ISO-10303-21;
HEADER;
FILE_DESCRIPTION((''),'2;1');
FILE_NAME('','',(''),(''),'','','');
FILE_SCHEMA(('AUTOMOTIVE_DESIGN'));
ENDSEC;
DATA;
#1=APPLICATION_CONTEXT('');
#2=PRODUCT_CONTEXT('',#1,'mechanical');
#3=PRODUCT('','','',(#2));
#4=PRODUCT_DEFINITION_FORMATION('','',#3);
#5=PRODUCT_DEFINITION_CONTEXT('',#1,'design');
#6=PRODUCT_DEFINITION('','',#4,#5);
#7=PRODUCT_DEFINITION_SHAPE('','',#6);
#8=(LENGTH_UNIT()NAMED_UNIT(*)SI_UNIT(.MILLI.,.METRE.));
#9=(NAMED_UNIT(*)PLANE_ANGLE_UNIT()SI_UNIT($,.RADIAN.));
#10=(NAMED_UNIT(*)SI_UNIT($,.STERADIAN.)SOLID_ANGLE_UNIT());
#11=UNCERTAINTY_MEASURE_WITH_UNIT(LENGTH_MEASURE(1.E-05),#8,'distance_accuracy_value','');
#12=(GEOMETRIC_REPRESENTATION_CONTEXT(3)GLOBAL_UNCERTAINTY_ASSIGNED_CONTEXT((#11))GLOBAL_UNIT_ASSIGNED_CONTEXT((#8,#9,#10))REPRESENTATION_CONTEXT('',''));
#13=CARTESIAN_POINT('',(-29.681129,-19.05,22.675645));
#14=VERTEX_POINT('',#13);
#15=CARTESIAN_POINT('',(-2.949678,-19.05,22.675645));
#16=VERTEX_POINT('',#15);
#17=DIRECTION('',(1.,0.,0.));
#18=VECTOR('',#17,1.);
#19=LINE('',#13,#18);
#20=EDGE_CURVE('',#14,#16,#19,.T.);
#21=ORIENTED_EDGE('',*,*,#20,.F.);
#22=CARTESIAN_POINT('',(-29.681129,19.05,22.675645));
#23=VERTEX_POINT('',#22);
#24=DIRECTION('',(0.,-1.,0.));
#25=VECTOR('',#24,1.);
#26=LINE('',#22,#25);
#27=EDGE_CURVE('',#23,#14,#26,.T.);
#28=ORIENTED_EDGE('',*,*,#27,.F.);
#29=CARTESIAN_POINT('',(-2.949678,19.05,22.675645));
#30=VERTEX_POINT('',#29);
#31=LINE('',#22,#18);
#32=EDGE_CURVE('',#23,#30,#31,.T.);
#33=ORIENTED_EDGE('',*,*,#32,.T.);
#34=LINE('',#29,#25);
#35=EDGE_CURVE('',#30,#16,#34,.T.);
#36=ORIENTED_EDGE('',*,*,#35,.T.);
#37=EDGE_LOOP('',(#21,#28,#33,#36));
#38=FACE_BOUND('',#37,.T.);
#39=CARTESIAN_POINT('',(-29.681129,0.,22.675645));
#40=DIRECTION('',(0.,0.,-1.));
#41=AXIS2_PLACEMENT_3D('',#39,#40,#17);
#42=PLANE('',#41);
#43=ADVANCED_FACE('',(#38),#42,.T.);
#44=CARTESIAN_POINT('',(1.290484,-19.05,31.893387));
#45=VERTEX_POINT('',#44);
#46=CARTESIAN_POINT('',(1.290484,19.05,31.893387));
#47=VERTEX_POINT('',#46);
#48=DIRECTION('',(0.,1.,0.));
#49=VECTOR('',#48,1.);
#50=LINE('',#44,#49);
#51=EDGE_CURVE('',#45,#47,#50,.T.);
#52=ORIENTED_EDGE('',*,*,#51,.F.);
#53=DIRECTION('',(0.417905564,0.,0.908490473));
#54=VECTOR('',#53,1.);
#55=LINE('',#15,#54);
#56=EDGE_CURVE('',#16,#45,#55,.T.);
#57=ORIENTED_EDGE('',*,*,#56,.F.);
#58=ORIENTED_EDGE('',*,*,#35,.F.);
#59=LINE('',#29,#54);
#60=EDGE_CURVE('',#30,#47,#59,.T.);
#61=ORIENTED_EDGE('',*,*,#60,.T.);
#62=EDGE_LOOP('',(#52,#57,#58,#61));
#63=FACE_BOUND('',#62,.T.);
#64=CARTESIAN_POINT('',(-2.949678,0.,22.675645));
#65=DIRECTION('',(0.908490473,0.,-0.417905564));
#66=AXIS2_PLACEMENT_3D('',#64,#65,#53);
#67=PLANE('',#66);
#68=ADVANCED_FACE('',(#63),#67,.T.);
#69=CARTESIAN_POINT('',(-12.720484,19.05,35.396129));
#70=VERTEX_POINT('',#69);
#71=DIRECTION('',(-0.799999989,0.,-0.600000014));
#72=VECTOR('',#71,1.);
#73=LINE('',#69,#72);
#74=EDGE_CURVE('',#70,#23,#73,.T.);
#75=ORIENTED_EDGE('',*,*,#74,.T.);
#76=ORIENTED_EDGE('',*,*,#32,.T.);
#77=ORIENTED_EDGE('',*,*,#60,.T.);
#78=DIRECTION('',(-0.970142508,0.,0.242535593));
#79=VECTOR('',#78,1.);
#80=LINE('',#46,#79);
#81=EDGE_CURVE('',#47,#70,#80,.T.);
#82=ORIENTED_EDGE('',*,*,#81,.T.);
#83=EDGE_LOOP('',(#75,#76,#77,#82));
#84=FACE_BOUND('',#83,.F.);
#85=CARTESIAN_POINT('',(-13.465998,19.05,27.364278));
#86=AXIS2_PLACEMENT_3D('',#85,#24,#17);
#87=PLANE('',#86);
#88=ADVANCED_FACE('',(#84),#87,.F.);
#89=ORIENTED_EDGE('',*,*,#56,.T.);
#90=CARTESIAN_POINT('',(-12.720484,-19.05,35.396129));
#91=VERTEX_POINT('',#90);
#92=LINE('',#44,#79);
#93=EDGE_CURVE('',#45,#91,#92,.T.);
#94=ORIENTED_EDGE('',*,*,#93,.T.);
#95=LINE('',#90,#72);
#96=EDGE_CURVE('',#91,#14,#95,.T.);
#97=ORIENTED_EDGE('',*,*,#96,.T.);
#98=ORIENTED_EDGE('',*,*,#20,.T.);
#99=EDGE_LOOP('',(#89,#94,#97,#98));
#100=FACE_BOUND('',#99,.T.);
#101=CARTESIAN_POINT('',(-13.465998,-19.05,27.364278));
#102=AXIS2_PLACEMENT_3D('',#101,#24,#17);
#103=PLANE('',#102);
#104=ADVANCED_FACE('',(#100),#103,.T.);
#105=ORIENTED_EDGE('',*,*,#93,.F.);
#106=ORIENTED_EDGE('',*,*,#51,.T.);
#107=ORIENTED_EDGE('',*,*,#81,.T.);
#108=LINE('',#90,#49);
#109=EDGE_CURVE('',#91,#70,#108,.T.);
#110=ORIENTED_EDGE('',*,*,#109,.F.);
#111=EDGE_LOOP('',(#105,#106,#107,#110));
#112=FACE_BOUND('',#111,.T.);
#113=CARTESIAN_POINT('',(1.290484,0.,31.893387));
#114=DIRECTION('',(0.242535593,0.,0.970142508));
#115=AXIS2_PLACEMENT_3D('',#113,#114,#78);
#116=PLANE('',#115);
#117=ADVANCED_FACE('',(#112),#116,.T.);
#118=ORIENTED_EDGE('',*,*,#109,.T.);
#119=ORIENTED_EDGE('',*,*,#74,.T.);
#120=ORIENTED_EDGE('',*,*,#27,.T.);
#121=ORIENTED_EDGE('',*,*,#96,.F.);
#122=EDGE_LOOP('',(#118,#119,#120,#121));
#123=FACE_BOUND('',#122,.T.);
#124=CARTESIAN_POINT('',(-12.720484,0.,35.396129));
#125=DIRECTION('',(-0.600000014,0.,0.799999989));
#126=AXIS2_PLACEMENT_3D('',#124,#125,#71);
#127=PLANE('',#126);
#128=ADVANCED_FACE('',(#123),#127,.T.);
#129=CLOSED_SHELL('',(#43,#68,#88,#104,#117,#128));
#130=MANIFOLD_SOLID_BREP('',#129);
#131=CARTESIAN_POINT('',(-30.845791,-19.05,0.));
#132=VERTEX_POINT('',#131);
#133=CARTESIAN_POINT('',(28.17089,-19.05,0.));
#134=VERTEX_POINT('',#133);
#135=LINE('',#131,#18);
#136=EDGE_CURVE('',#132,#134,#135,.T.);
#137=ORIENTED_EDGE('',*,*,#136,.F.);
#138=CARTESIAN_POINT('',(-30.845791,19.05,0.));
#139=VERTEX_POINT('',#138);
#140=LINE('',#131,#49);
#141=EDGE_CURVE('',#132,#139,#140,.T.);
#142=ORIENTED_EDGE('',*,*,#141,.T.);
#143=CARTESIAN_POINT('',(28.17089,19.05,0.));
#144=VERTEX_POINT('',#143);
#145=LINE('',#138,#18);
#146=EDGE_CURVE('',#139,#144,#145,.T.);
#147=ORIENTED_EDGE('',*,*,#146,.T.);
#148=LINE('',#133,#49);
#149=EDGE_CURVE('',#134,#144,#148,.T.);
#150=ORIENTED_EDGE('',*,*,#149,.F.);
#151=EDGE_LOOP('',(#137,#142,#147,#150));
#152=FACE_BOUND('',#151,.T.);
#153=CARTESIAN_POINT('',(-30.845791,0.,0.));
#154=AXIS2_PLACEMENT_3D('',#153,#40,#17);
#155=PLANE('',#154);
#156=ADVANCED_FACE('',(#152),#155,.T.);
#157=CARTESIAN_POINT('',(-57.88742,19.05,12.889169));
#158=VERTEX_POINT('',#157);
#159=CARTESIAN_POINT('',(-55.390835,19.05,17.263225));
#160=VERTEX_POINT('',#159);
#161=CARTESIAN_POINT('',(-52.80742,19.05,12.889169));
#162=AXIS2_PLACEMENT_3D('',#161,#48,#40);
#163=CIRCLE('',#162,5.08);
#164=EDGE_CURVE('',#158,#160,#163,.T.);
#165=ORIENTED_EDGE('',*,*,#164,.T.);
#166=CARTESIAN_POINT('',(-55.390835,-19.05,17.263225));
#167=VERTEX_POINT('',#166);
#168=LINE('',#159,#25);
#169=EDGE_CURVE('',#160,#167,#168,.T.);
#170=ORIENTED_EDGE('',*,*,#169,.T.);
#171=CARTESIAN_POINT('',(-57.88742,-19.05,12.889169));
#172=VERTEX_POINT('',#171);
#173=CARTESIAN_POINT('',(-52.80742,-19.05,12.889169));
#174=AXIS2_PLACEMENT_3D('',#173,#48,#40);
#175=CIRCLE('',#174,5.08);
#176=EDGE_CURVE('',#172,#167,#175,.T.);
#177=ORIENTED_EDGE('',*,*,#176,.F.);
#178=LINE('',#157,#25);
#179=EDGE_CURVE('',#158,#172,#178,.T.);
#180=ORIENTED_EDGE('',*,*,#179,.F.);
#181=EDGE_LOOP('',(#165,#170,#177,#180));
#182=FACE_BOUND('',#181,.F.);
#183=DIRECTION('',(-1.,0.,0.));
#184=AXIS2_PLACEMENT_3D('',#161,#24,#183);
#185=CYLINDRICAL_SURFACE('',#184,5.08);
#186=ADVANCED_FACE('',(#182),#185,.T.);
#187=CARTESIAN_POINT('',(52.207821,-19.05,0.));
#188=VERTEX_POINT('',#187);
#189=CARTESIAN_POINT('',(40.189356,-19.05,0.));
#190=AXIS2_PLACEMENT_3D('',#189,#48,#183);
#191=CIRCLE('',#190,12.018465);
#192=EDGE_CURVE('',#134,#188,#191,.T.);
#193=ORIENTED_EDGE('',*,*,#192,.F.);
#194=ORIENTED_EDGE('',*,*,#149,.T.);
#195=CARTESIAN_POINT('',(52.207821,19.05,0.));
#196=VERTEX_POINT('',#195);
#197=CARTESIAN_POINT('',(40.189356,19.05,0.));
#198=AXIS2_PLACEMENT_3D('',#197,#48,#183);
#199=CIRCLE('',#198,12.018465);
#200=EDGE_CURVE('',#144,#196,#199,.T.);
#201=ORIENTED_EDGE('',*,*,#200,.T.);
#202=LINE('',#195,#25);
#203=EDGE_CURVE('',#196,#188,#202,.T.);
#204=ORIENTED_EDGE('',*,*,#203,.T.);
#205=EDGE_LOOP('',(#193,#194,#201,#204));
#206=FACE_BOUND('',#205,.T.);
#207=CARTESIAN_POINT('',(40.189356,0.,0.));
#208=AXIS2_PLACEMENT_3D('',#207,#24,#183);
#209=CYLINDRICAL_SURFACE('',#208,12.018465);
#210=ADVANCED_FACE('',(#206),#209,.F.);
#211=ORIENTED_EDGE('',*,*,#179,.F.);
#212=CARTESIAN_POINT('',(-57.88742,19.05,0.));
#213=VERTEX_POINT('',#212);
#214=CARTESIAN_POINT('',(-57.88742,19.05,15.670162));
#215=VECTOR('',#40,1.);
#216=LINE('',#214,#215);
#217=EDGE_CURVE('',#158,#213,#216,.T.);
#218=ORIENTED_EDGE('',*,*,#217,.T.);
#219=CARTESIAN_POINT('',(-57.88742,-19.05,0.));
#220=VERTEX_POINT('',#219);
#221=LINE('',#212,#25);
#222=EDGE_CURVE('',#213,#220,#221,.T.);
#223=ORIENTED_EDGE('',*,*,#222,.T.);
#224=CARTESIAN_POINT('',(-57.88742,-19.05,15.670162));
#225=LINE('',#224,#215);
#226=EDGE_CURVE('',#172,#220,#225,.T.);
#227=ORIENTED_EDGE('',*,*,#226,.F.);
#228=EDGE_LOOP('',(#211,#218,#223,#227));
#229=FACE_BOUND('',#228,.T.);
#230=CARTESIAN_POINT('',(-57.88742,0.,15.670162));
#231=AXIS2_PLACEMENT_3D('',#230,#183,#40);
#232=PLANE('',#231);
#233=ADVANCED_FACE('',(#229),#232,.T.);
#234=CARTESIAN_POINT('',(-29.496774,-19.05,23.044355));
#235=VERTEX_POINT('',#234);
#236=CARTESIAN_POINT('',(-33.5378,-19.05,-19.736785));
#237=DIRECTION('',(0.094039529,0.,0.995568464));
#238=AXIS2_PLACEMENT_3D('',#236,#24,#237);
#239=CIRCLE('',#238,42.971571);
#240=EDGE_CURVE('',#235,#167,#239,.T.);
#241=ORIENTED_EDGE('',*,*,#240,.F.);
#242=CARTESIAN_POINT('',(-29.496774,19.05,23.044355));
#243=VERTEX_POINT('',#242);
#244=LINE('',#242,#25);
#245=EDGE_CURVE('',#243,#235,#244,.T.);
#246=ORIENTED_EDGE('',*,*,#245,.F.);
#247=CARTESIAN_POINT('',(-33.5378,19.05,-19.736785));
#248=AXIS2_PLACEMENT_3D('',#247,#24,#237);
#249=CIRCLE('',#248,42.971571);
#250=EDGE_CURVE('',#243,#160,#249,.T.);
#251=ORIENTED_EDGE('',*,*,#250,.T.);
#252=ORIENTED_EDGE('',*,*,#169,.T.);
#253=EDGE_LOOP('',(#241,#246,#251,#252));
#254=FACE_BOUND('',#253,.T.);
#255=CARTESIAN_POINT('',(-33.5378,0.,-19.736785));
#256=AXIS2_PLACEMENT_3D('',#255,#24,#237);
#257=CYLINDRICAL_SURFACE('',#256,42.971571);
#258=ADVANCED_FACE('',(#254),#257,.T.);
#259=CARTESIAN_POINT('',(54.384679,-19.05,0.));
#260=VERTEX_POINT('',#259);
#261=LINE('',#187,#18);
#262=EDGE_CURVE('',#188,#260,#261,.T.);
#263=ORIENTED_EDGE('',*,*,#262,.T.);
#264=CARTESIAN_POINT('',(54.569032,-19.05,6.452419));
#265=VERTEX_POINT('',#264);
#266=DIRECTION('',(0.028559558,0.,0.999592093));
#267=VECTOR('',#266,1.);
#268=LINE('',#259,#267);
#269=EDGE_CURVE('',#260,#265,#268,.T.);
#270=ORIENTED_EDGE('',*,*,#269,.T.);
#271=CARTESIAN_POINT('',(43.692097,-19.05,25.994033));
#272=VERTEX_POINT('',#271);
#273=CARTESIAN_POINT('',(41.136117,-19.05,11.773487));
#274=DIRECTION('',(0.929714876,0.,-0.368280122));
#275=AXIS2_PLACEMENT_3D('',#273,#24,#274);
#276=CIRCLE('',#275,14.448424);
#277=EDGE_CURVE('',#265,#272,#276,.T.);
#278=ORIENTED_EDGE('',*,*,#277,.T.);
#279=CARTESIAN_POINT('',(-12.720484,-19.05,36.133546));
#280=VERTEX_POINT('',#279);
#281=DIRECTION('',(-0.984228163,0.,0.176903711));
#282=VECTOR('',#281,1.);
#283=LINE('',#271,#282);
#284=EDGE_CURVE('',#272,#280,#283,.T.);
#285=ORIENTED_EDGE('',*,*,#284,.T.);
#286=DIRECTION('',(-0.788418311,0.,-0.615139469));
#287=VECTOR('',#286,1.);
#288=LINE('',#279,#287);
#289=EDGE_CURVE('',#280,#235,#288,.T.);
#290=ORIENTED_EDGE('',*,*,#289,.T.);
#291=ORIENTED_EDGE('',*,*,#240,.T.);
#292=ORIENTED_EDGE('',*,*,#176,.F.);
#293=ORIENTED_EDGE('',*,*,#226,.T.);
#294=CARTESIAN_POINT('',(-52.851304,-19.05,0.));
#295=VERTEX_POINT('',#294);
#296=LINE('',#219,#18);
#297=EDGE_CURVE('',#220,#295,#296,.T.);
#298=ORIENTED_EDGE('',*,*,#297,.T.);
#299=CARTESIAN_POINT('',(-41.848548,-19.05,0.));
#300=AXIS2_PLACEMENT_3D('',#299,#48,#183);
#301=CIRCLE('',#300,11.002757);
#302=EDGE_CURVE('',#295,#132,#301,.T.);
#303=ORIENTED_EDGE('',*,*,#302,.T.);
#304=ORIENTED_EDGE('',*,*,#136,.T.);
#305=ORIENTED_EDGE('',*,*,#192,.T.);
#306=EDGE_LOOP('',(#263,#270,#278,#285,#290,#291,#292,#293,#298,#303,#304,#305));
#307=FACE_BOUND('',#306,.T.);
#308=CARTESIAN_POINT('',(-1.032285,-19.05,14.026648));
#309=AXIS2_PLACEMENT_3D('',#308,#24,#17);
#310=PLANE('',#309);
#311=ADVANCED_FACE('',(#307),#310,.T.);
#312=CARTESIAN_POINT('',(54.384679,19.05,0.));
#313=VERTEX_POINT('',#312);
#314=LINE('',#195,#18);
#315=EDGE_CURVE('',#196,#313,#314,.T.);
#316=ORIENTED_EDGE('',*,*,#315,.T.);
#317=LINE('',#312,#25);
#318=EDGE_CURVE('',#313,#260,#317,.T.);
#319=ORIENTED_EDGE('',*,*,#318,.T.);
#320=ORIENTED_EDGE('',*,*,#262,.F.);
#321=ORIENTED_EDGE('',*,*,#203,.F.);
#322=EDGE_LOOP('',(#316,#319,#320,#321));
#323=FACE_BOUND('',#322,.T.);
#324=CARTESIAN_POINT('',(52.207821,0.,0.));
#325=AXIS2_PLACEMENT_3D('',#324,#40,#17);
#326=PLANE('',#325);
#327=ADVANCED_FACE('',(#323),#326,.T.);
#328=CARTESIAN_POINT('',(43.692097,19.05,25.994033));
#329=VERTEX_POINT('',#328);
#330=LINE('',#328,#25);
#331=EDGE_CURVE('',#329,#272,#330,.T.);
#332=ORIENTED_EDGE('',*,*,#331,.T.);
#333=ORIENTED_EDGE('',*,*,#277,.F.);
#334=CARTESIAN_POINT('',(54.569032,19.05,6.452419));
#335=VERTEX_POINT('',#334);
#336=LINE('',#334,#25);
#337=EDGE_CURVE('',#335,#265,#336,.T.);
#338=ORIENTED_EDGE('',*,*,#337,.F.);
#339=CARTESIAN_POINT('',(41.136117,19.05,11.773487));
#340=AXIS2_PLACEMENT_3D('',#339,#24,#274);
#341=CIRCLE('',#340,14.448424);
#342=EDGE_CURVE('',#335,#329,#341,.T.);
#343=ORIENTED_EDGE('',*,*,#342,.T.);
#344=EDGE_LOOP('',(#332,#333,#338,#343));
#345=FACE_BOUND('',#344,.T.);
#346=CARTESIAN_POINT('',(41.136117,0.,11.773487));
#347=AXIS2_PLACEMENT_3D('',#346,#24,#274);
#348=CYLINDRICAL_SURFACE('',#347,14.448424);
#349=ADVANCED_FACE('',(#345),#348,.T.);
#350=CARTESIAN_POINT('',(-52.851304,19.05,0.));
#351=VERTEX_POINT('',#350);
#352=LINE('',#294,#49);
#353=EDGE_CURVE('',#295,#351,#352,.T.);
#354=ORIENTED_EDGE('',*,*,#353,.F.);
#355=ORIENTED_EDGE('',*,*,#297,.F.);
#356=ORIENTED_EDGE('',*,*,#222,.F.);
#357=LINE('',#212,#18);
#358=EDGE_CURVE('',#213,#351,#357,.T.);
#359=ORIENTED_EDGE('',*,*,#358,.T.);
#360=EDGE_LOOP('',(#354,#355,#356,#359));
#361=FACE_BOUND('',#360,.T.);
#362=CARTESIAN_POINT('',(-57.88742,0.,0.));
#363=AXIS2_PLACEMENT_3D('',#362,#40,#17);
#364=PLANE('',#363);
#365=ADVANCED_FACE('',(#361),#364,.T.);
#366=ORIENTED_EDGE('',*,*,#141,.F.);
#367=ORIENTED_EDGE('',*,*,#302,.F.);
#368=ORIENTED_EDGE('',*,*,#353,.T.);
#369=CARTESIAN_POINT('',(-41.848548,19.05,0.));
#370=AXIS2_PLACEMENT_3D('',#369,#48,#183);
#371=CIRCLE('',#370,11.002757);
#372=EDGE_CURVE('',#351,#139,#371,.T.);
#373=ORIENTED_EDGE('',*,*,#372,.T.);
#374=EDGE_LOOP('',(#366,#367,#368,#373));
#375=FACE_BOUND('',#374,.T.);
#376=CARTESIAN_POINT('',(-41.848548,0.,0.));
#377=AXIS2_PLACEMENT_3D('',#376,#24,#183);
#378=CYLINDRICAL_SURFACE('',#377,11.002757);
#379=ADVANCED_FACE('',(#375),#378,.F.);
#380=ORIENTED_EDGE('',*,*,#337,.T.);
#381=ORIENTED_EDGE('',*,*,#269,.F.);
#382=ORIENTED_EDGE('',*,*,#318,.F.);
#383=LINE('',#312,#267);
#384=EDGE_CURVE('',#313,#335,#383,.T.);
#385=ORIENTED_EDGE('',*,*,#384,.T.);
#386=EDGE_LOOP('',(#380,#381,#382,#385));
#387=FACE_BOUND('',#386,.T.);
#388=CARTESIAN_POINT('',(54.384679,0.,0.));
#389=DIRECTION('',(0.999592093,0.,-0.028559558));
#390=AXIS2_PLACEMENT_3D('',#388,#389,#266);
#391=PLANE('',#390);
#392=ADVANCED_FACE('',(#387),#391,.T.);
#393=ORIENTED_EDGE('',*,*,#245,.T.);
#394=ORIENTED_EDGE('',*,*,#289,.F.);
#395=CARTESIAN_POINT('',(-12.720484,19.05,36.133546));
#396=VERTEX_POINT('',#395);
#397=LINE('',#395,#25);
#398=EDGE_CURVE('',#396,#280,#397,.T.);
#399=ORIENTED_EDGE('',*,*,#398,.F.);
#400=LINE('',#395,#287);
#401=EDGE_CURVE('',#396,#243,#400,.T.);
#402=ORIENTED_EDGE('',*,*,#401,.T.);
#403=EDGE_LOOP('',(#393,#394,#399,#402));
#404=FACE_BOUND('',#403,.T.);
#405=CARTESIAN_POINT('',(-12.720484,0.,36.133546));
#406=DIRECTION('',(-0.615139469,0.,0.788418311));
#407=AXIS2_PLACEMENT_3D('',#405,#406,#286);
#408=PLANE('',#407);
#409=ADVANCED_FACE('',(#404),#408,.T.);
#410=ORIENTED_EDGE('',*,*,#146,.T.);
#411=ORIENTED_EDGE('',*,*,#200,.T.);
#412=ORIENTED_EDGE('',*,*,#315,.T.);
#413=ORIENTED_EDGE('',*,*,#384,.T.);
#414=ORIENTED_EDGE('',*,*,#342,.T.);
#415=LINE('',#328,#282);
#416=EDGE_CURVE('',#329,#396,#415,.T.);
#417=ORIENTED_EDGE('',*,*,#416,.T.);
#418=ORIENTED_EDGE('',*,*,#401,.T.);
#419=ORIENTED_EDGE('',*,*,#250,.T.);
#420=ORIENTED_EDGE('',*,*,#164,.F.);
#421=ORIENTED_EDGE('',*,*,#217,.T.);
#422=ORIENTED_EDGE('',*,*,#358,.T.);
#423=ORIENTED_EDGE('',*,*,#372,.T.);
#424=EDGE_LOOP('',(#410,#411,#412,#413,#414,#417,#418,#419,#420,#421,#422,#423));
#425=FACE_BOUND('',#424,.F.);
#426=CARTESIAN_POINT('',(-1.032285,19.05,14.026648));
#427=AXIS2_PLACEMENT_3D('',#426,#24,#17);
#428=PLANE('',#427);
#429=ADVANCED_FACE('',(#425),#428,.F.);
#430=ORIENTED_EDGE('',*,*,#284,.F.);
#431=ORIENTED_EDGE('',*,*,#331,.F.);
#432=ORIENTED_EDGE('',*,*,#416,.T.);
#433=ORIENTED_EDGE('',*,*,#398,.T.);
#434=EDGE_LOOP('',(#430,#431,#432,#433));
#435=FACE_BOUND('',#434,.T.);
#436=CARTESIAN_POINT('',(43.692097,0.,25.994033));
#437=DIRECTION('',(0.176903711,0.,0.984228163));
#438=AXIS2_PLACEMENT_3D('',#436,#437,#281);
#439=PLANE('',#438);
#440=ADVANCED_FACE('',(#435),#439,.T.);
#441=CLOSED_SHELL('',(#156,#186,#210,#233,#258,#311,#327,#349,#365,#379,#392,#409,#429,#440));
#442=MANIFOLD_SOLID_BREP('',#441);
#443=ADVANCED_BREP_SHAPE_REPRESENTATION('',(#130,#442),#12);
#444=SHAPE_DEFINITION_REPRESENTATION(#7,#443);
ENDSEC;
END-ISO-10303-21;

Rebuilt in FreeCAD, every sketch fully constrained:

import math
import FreeCAD as App
import Part
import Sketcher

V = App.Vector
Q = App.Units.Quantity


def edges_at(feature, points):
    """Names of the edges that pass closest to the given points."""
    edges = feature.Shape.Edges
    near = lambda p: min(range(len(edges)), key=lambda i: edges[i].distToShape(Part.Vertex(*p))[0])
    return sorted({f"Edge{near(p) + 1}" for p in points})


def add_polygon(sketch, points):
    """Adds a closed chain of lines whose ends are joined by coincident constraints."""
    first, n = sketch.GeometryCount, len(points)
    for a, b in zip(points, points[1:] + points[:1]):
        sketch.addGeometry(Part.LineSegment(App.Vector(*a, 0), App.Vector(*b, 0)), False)
    for i in range(n):
        sketch.addConstraint(Sketcher.Constraint("Coincident", first + i, 2, first + (i + 1) % n, 1))

doc = App.newDocument("Part")
body = doc.addObject("PartDesign::Body", "Body")

# Sketch on XZ plane
sketch1 = body.newObject("Sketcher::SketchObject", "Sketch")
sketch1.AttachmentSupport = (doc.getObject("XZ_Plane"), [""])
sketch1.MapMode = "FlatFace"
add_polygon(sketch1, [(-13, 35), (-30, 23), (-3, 23), (1, 32)])  # lines 0-3
sketch1.addConstraint(Sketcher.Constraint("Horizontal", 1))
sketch1.addConstraint(Sketcher.Constraint("DistanceX", 1, 1, 1, 2, 26.731452))
sketch1.addConstraint(Sketcher.Constraint("Distance", 2, 10.146218))
sketch1.addConstraint(Sketcher.Constraint("DistanceX", 0, 2, -1, 1, 29.681129))
sketch1.addConstraint(Sketcher.Constraint("DistanceY", -1, 1, 3, 2, 35.396129))
sketch1.addConstraint(Sketcher.Constraint("DistanceX", 1, 2, 2, 2, 4.240161))
sketch1.addConstraint(Sketcher.Constraint("DistanceY", 2, 2, 3, 2, 3.502741))
sketch1.addConstraint(Sketcher.Constraint("Distance", 0, 21.200807))
pad1 = body.newObject("PartDesign::Pad", "Pad")
pad1.Profile = sketch1
pad1.Length = Q("1.5 in")
pad1.Midplane = True
body2 = doc.addObject("PartDesign::Body", "Body001")

# Sketch on XZ plane
sketch2 = body2.newObject("Sketcher::SketchObject", "Sketch001")
sketch2.AttachmentSupport = (doc.getObject("XZ_Plane001"), [""])
sketch2.MapMode = "FlatFace"
sketch2.addGeometry(Part.ArcOfCircle(Part.Circle(V(40.2, 0, 0), V(0, 0, 1), 12), math.radians(0), math.radians(180)), False)
sketch2.addGeometry(Part.LineSegment(V(52.2, 0, 0), V(54.4, 0, 0)), False)
sketch2.addGeometry(Part.LineSegment(V(54.4, 0, 0), V(54.6, 6.5, 0)), False)
sketch2.addGeometry(Part.ArcOfCircle(Part.Circle(V(41.1, 11.8, 0), V(0, 0, 1), 14.4), math.radians(-22), math.radians(80)), False)
sketch2.addGeometry(Part.LineSegment(V(43.7, 26, 0), V(-12.7, 36.1, 0)), False)
sketch2.addGeometry(Part.LineSegment(V(-12.7, 36.1, 0), V(-29.5, 23, 0)), False)
sketch2.addGeometry(Part.ArcOfCircle(Part.Circle(V(-33.5, -19.7, 0), V(0, 0, 1), 43), math.radians(85), math.radians(125)), False)
sketch2.addGeometry(Part.LineSegment(V(-57.9, 15.7, 0), V(-57.9, 0, 0)), False)
sketch2.addGeometry(Part.LineSegment(V(-57.9, 0, 0), V(-52.9, 0, 0)), False)
sketch2.addGeometry(Part.ArcOfCircle(Part.Circle(V(-41.8, 0, 0), V(0, 0, 1), 11), math.radians(0), math.radians(180)), False)
sketch2.addGeometry(Part.LineSegment(V(-30.8, 0, 0), V(28.2, 0, 0)), False)
sketch2.addConstraint(Sketcher.Constraint("Coincident", 0, 1, 1, 1))
sketch2.addConstraint(Sketcher.Constraint("Coincident", 1, 2, 2, 1))
sketch2.addConstraint(Sketcher.Constraint("Coincident", 2, 2, 3, 1))
sketch2.addConstraint(Sketcher.Constraint("Tangent", 3, 2, 4, 1))
sketch2.addConstraint(Sketcher.Constraint("Coincident", 4, 2, 5, 1))
sketch2.addConstraint(Sketcher.Constraint("Coincident", 5, 2, 6, 1))
sketch2.addConstraint(Sketcher.Constraint("Coincident", 6, 2, 7, 1))
sketch2.addConstraint(Sketcher.Constraint("Coincident", 7, 2, 8, 1))
sketch2.addConstraint(Sketcher.Constraint("Coincident", 8, 2, 9, 2))
sketch2.addConstraint(Sketcher.Constraint("Coincident", 9, 1, 10, 1))
sketch2.addConstraint(Sketcher.Constraint("Coincident", 10, 2, 0, 2))
sketch2.addConstraint(Sketcher.Constraint("Horizontal", 1))
sketch2.addConstraint(Sketcher.Constraint("Vertical", 7))
sketch2.addConstraint(Sketcher.Constraint("Horizontal", 8))
sketch2.addConstraint(Sketcher.Constraint("Horizontal", 10))
sketch2.addConstraint(Sketcher.Constraint("PointOnObject", 0, 3, -1))
sketch2.addConstraint(Sketcher.Constraint("PointOnObject", 9, 3, -1))
sketch2.addConstraint(Sketcher.Constraint("PointOnObject", 0, 1, -1))
sketch2.addConstraint(Sketcher.Constraint("PointOnObject", 7, 2, -1))
sketch2.addConstraint(Sketcher.Constraint("PointOnObject", 9, 1, -1))
sketch2.addConstraint(Sketcher.Constraint("Radius", 6, 42.971571))
sketch2.addConstraint(Sketcher.Constraint("Radius", 0, 12.018465))
sketch2.addConstraint(Sketcher.Constraint("Radius", 3, 14.448424))
sketch2.addConstraint(Sketcher.Constraint("Radius", 9, 11.002757))
sketch2.addConstraint(Sketcher.Constraint("DistanceX", 10, 1, 10, 2, 59.016681))
sketch2.addConstraint(Sketcher.Constraint("DistanceY", 7, 2, 7, 1, 15.670162))
sketch2.addConstraint(Sketcher.Constraint("DistanceX", 6, 3, -1, 1, 33.5378))
sketch2.addConstraint(Sketcher.Constraint("DistanceX", 4, 2, 3, 3, 53.856602))
sketch2.addConstraint(Sketcher.Constraint("Distance", 4, 57.316569))
sketch2.addConstraint(Sketcher.Constraint("DistanceX", 1, 1, 1, 2, 2.176858))
sketch2.addConstraint(Sketcher.Constraint("DistanceX", 8, 1, 8, 2, 5.036116))
sketch2.addConstraint(Sketcher.Constraint("DistanceX", -1, 1, 0, 1, 52.207821))
sketch2.addConstraint(Sketcher.Constraint("DistanceY", -1, 1, 2, 2, 6.452419))
sketch2.addConstraint(Sketcher.Constraint("DistanceX", 0, 3, 3, 3, 0.946762))
sketch2.addConstraint(Sketcher.Constraint("DistanceX", 0, 1, 2, 2, 2.361211))
sketch2.addConstraint(Sketcher.Constraint("DistanceX", 5, 2, 4, 2, 16.77629))
pad2 = body2.newObject("PartDesign::Pad", "Pad001")
pad2.Profile = sketch2
pad2.Length = Q("1.5 in")
pad2.Midplane = True
doc.recompute()

fillet = body2.newObject("PartDesign::Fillet", "Fillet")
fillet.Base = (pad2, edges_at(pad2, [(43.692, 0, 25.994), (-57.887, 0, 15.67)]))
fillet.Radius = Q("0.2 in")

doc.recompute()
